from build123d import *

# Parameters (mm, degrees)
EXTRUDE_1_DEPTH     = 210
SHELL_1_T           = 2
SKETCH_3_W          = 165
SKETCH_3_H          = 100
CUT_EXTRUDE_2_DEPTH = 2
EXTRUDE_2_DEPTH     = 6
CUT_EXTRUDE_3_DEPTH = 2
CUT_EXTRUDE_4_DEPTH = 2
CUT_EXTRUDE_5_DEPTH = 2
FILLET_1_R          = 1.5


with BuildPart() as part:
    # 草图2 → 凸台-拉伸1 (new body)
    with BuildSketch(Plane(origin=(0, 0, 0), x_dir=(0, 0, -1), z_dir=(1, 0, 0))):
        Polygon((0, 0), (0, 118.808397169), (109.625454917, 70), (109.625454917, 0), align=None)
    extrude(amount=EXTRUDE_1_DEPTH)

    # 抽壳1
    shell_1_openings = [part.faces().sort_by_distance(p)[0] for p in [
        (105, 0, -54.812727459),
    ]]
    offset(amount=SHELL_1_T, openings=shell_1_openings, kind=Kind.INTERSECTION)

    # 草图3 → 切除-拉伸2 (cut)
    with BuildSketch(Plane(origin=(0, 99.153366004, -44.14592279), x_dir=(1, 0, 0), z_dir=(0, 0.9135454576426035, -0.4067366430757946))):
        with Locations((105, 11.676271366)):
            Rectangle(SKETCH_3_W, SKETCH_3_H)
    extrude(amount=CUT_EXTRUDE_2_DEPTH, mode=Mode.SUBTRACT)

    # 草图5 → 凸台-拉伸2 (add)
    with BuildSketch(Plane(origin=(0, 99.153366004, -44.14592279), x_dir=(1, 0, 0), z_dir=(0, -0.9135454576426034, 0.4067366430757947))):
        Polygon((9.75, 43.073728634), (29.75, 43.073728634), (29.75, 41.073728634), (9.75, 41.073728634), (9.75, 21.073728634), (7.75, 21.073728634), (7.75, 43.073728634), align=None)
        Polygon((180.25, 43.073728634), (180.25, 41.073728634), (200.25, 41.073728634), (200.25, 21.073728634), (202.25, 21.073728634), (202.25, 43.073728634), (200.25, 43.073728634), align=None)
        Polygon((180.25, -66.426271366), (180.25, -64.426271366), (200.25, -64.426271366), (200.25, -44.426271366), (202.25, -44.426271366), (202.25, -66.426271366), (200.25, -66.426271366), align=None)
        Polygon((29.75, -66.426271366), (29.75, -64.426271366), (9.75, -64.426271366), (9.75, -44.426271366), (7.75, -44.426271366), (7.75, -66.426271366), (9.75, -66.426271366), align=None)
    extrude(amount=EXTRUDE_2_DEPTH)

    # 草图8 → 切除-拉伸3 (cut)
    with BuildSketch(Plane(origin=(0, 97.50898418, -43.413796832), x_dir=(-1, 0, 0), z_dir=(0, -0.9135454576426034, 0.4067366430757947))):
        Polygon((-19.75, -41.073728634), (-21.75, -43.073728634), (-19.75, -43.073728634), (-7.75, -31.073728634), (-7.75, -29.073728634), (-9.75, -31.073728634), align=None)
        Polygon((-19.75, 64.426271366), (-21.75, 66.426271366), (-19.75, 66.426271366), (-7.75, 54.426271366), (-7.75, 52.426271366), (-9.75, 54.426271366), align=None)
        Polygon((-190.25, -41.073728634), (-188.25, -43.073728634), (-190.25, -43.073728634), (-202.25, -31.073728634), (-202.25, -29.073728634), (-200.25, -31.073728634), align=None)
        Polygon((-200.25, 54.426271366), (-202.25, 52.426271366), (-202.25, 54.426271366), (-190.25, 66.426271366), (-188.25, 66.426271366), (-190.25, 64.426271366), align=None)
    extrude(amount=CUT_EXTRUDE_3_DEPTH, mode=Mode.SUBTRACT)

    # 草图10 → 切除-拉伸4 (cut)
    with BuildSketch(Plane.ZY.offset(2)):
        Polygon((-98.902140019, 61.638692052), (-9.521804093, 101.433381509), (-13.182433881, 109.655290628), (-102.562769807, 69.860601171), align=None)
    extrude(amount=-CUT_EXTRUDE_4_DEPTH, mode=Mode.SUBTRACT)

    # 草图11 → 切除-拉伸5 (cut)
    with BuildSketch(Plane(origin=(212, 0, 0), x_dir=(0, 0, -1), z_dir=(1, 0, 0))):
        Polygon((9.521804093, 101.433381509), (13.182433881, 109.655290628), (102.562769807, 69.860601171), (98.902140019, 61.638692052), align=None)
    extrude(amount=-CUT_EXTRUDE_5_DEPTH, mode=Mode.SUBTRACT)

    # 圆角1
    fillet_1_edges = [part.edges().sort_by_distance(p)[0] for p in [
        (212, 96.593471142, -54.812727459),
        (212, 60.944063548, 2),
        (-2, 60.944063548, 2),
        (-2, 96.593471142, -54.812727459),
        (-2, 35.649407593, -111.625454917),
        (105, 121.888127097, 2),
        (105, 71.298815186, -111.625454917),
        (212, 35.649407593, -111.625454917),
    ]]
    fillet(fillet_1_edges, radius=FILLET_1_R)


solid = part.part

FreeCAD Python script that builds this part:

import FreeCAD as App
import Part
import Sketcher

V = App.Vector
Q = App.Units.Quantity


def edges_at(feature, points):
    """Names of the edges that pass closest to the given points."""
    edges = feature.Shape.Edges
    near = lambda p: min(range(len(edges)), key=lambda i: edges[i].distToShape(Part.Vertex(*p))[0])
    return sorted({f"Edge{near(p) + 1}" for p in points})


def faces_at(feature, points):
    """Names of the faces that lie closest to the given points."""
    faces = feature.Shape.Faces
    near = lambda p: min(range(len(faces)), key=lambda i: faces[i].distToShape(Part.Vertex(*p))[0])
    return sorted({f"Face{near(p) + 1}" for p in points})


def add_polygon(sketch, points):
    """Adds a closed chain of lines whose ends are joined by coincident constraints."""
    first, n = sketch.GeometryCount, len(points)
    for a, b in zip(points, points[1:] + points[:1]):
        sketch.addGeometry(Part.LineSegment(App.Vector(*a, 0), App.Vector(*b, 0)), False)
    for i in range(n):
        sketch.addConstraint(Sketcher.Constraint("Coincident", first + i, 2, first + (i + 1) % n, 1))

doc = App.newDocument("Part")
body = doc.addObject("PartDesign::Body", "Body")

# Sketch on YZ plane
sketch1 = doc.addObject("Sketcher::SketchObject", "Sketch")
body.addObject(sketch1)
sketch1.AttachmentSupport = (doc.YZ_Plane, [""])
sketch1.MapMode = "FlatFace"
add_polygon(sketch1, [(119, 0), (0, 0), (0, -110), (70, -110)])  # lines 0-3
sketch1.addConstraint([
    Sketcher.Constraint("Horizontal", 0),
    Sketcher.Constraint("Vertical", 1),
    Sketcher.Constraint("Horizontal", 2),
    Sketcher.Constraint("Coincident", 0, 2, -1, 1),
    Sketcher.Constraint("DistanceX", 2, 1, 2, 2, Q("70 mm")),
    Sketcher.Constraint("Angle", 3, Q("66 deg")),
    Sketcher.Constraint("Distance", 3, Q("120 mm")),
])
pad1 = doc.addObject("PartDesign::Pad", "Pad")
body.addObject(pad1)
pad1.Profile = sketch1
pad1.Length = 210
doc.recompute()

thickness = doc.addObject("PartDesign::Thickness", "Thickness")
body.addObject(thickness)
thickness.Base = (pad1, faces_at(pad1, [(105, 0, -54.813)]))
thickness.Value = 2
thickness.Reversed = False
thickness.Join = "Intersection"

# Sketch on an angled plane
sketch2 = doc.addObject("Sketcher::SketchObject", "Sketch001")
body.addObject(sketch2)
sketch2.Placement = App.Placement(V(0, 99.153366, -44.145923), App.Rotation(V(1, 0, 0), V(0, -0.406736643, -0.913545458), V(0, 0.913545458, -0.406736643), "ZXY"))
add_polygon(sketch2, [(22, 62), (22, -38), (188, -38), (188, 62)])  # lines 0-3
sketch2.addConstraint([
    Sketcher.Constraint("Vertical", 0),
    Sketcher.Constraint("Horizontal", 1),
    Sketcher.Constraint("Vertical", 2),
    Sketcher.Constraint("Horizontal", 3),
    Sketcher.Constraint("DistanceX", 1, 1, 1, 2, Q("165 mm")),
    Sketcher.Constraint("DistanceY", 0, 2, 0, 1, Q("100 mm")),
    Sketcher.Constraint("DistanceX", -1, 1, 0, 2, Q("22.5 mm")),
    Sketcher.Constraint("DistanceY", 0, 2, -1, 1, Q("38.323729 mm")),
])
pocket1 = doc.addObject("PartDesign::Pocket", "Pocket")
body.addObject(pocket1)
pocket1.Profile = sketch2
pocket1.Length = 2
pocket1.Reversed = True

# Sketch on an angled plane
sketch3 = doc.addObject("Sketcher::SketchObject", "Sketch002")
body.addObject(sketch3)
sketch3.Placement = App.Placement(V(0, 99.153366, -44.145923), App.Rotation(V(1, 0, 0), V(0, 0.406736643, 0.913545458), V(0, -0.913545458, 0.406736643), "ZXY"))
add_polygon(sketch3, [(29.8, 43.1), (7.8, 43.1), (7.8, 21.1), (9.8, 21.1), (9.8, 41.1), (29.8, 41.1)])  # lines 0-5
add_polygon(sketch3, [(180.2, 43.1), (180.2, 41.1), (200.2, 41.1), (200.2, 21.1), (202.2, 21.1), (202.2, 43.1)])  # lines 6-11
add_polygon(sketch3, [(180.2, -64.4), (180.2, -66.4), (202.2, -66.4), (202.2, -44.4), (200.2, -44.4), (200.2, -64.4)])  # lines 12-17
add_polygon(sketch3, [(29.8, -66.4), (29.8, -64.4), (9.8, -64.4), (9.8, -44.4), (7.8, -44.4), (7.8, -66.4)])  # lines 18-23
sketch3.addConstraint([
    Sketcher.Constraint("Horizontal", 0),
    Sketcher.Constraint("Vertical", 1),
    Sketcher.Constraint("Horizontal", 2),
    Sketcher.Constraint("Vertical", 3),
    Sketcher.Constraint("Horizontal", 4),
    Sketcher.Constraint("Vertical", 5),
    Sketcher.Constraint("Vertical", 6),
    Sketcher.Constraint("Horizontal", 7),
    Sketcher.Constraint("Vertical", 8),
    Sketcher.Constraint("Horizontal", 9),
    Sketcher.Constraint("Vertical", 10),
    Sketcher.Constraint("Horizontal", 11),
    Sketcher.Constraint("Vertical", 12),
    Sketcher.Constraint("Horizontal", 13),
    Sketcher.Constraint("Vertical", 14),
    Sketcher.Constraint("Horizontal", 15),
    Sketcher.Constraint("Vertical", 16),
    Sketcher.Constraint("Horizontal", 17),
    Sketcher.Constraint("Vertical", 18),
    Sketcher.Constraint("Horizontal", 19),
    Sketcher.Constraint("Vertical", 20),
    Sketcher.Constraint("Horizontal", 21),
    Sketcher.Constraint("Vertical", 22),
    Sketcher.Constraint("Horizontal", 23),
    Sketcher.Constraint("Horizontal", 4, 2, 6, 2),
    Sketcher.Constraint("Horizontal", 2, 2, 8, 2),
    Sketcher.Constraint("Horizontal", 5, 2, 10, 2),
    Sketcher.Constraint("Horizontal", 17, 2, 18, 2),
    Sketcher.Constraint("Horizontal", 15, 2, 20, 2),
    Sketcher.Constraint("Horizontal", 13, 2, 22, 2),
    Sketcher.Constraint("Vertical", 11, 2, 12, 2),
    Sketcher.Constraint("Vertical", 10, 2, 13, 2),
    Sketcher.Constraint("Vertical", 8, 2, 15, 2),
    Sketcher.Constraint("Vertical", 5, 2, 18, 2),
    Sketcher.Constraint("Vertical", 3, 2, 19, 2),
    Sketcher.Constraint("Vertical", 1, 2, 21, 2),
    Sketcher.Constraint("Equal", 4, 7),
    Sketcher.Constraint("Equal", 2, 9),
    Sketcher.Constraint("Equal", 23, 1),
    Sketcher.Constraint("Equal", 19, 3),
    Sketcher.Constraint("Equal", 6, 12),
    Sketcher.Constraint("Equal", 10, 14),
    Sketcher.Constraint("DistanceX", 0, 2, 0, 1, Q("22 mm")),
    Sketcher.Constraint("DistanceX", 2, 1, 2, 2, Q("2 mm")),
    Sketcher.Constraint("DistanceX", 4, 2, 6, 2, Q("150.5 mm")),
    Sketcher.Constraint("DistanceY", 12, 2, 8, 2, Q("87.5 mm")),
    Sketcher.Constraint("DistanceX", -1, 1, 0, 2, Q("7.75 mm")),
    Sketcher.Constraint("DistanceY", -1, 1, 0, 2, Q("43.073729 mm")),
])
pad2 = doc.addObject("PartDesign::Pad", "Pad001")
body.addObject(pad2)
pad2.Profile = sketch3
pad2.Length = 6

# Sketch on an angled plane
sketch4 = doc.addObject("Sketcher::SketchObject", "Sketch003")
body.addObject(sketch4)
sketch4.Placement = App.Placement(V(0, 97.508984, -43.413797), App.Rotation(V(-1, 0, 0), V(0, -0.406736643, -0.913545458), V(0, -0.913545458, 0.406736643), "ZXY"))
add_polygon(sketch4, [(-21.8, -43.1), (-19.8, -43.1), (-7.8, -31.1), (-7.8, -29.1)])  # lines 0-3
add_polygon(sketch4, [(-21.8, 66.4), (-7.8, 52.4), (-7.8, 54.4), (-19.8, 66.4)])  # lines 4-7
add_polygon(sketch4, [(-188.2, -43.1), (-202.2, -29.1), (-202.2, -31.1), (-190.2, -43.1)])  # lines 8-11
add_polygon(sketch4, [(-202.2, 52.4), (-188.2, 66.4), (-190.2, 66.4), (-202.2, 54.4)])  # lines 12-15
sketch4.addConstraint([
    Sketcher.Constraint("Horizontal", 0),
    Sketcher.Constraint("Vertical", 2),
    Sketcher.Constraint("Vertical", 5),
    Sketcher.Constraint("Horizontal", 7),
    Sketcher.Constraint("Vertical", 9),
    Sketcher.Constraint("Horizontal", 11),
    Sketcher.Constraint("Horizontal", 13),
    Sketcher.Constraint("Vertical", 15),
    Sketcher.Constraint("Parallel", 1, 3),
    Sketcher.Constraint("Perpendicular", 3, 4),
    Sketcher.Constraint("Parallel", 4, 6),
    Sketcher.Constraint("Parallel", 6, 8),
    Sketcher.Constraint("Parallel", 8, 10),
    Sketcher.Constraint("Perpendicular", 10, 12),
    Sketcher.Constraint("Parallel", 12, 14),
    Sketcher.Constraint("Horizontal", 2, 2, 8, 2),
    Sketcher.Constraint("Horizontal", 1, 2, 9, 2),
    Sketcher.Constraint("Horizontal", 3, 2, 10, 2),
    Sketcher.Constraint("Horizontal", 7, 2, 12, 2),
    Sketcher.Constraint("Horizontal", 5, 2, 14, 2),
    Sketcher.Constraint("Horizontal", 4, 2, 15, 2),
    Sketcher.Constraint("Vertical", 2, 2, 4, 2),
    Sketcher.Constraint("Vertical", 0, 2, 6, 2),
    Sketcher.Constraint("Vertical", 3, 2, 7, 2),
    Sketcher.Constraint("Vertical", 11, 2, 12, 2),
    Sketcher.Constraint("Vertical", 10, 2, 13, 2),
    Sketcher.Constraint("DistanceX", 0, 1, 0, 2, Q("2 mm")),
    Sketcher.Constraint("DistanceX", 0, 2, 1, 2, Q("12 mm")),
    Sketcher.Constraint("DistanceY", 2, 2, 4, 2, Q("81.5 mm")),
    Sketcher.Constraint("DistanceX", 8, 2, 3, 2, Q("180.5 mm")),
    Sketcher.Constraint("DistanceX", 0, 2, -1, 1, Q("19.75 mm")),
    Sketcher.Constraint("DistanceY", 0, 2, -1, 1, Q("43.073729 mm")),
])
pocket2 = doc.addObject("PartDesign::Pocket", "Pocket001")
body.addObject(pocket2)
pocket2.Profile = sketch4
pocket2.Length = 2
pocket2.Reversed = True

# Sketch on YZ plane
sketch5 = doc.addObject("Sketcher::SketchObject", "Sketch004")
body.addObject(sketch5)
sketch5.AttachmentSupport = (doc.YZ_Plane, [""])
sketch5.MapMode = "FlatFace"
sketch5.AttachmentOffset = App.Placement(V(0, 0, -2), App.Rotation())
add_polygon(sketch5, [(62, -99), (101, -10), (110, -13), (70, -103)])  # lines 0-3
sketch5.addConstraint([
    Sketcher.Constraint("Perpendicular", 0, 1),
    Sketcher.Constraint("Perpendicular", 1, 2),
    Sketcher.Constraint("Perpendicular", 2, 3),
    Sketcher.Constraint("Angle", 0, Q("66 deg")),
    Sketcher.Constraint("Distance", 1, Q("9 mm")),
    Sketcher.Constraint("DistanceX", -1, 1, 2, 2, Q("69.860601 mm")),
    Sketcher.Constraint("DistanceX", 3, 2, 1, 2, Q("48.016599 mm")),
    Sketcher.Constraint("DistanceY", 2, 2, -1, 1, Q("102.56277 mm")),
])
pocket3 = doc.addObject("PartDesign::Pocket", "Pocket002")
body.addObject(pocket3)
pocket3.Profile = sketch5
pocket3.Length = 2
pocket3.Reversed = True

# Sketch on YZ plane
sketch6 = doc.addObject("Sketcher::SketchObject", "Sketch005")
body.addObject(sketch6)
sketch6.AttachmentSupport = (doc.YZ_Plane, [""])
sketch6.MapMode = "FlatFace"
sketch6.AttachmentOffset = App.Placement(V(0, 0, 212), App.Rotation())
add_polygon(sketch6, [(110, -13), (101, -10), (62, -99), (70, -103)])  # lines 0-3
sketch6.addConstraint([
    Sketcher.Constraint("Perpendicular", 0, 1),
    Sketcher.Constraint("Perpendicular", 1, 2),
    Sketcher.Constraint("Perpendicular", 2, 3),
    Sketcher.Constraint("Angle", 0, Q("156 deg")),
    Sketcher.Constraint("Distance", 0, Q("9 mm")),
    Sketcher.Constraint("DistanceX", -1, 1, 2, 2, Q("69.860601 mm")),
    Sketcher.Constraint("DistanceX", 1, 2, 3, 2, Q("48.016599 mm")),
    Sketcher.Constraint("DistanceY", 1, 2, -1, 1, Q("98.90214 mm")),
])
pocket4 = doc.addObject("PartDesign::Pocket", "Pocket003")
body.addObject(pocket4)
pocket4.Profile = sketch6
pocket4.Length = 2
doc.recompute()

fillet = doc.addObject("PartDesign::Fillet", "Fillet")
body.addObject(fillet)
fillet.Base = (pocket4, edges_at(pocket4, [
    (212, 96.593, -54.813),
    (212, 60.944, 2),
    (-2, 60.944, 2),
    (-2, 96.593, -54.813),
    (-2, 35.649, -111.625),
    (105, 121.888, 2),
    (105, 71.299, -111.625),
    (212, 35.649, -111.625),
]))
fillet.Radius = 1.5

doc.recompute()
